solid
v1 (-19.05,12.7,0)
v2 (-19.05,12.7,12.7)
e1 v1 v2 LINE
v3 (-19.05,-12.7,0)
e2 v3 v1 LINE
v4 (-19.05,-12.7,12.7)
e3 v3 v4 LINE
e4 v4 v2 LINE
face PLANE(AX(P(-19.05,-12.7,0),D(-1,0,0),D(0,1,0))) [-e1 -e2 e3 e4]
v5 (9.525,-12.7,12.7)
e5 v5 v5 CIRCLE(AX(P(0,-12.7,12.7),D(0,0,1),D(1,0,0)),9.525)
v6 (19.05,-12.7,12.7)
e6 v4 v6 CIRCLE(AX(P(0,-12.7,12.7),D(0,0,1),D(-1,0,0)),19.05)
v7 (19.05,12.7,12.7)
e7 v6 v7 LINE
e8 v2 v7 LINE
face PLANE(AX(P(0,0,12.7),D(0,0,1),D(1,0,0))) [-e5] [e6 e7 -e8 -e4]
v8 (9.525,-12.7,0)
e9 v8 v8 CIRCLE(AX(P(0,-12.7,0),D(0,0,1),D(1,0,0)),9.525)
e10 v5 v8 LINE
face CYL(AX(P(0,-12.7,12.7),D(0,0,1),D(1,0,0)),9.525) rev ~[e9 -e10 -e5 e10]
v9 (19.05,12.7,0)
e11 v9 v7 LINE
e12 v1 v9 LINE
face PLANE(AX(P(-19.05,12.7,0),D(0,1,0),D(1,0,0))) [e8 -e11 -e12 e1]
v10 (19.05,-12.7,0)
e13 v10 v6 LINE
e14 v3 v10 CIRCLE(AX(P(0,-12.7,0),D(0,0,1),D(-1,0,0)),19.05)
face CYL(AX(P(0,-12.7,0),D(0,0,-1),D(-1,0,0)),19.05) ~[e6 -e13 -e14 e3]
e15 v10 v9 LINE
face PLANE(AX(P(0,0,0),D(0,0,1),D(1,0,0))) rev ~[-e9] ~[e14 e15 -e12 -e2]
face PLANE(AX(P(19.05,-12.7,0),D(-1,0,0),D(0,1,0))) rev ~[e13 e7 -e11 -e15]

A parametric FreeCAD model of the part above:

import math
import FreeCAD as App
import Part
import Sketcher

V = App.Vector
Q = App.Units.Quantity

doc = App.newDocument("Part")
body = doc.addObject("PartDesign::Body", "Body")

sketch1 = body.newObject("Sketcher::SketchObject", "Sketch")
sketch1.AttachmentSupport = (doc.getObject("XY_Plane"), [""])
sketch1.MapMode = "FlatFace"
sketch1.addGeometry(Part.LineSegment(V(-19.05, 12.7, 0), V(-19.05, -12.7, 0)), False)
sketch1.addGeometry(Part.ArcOfCircle(Part.Circle(V(0, -12.7, 0), V(0, 0, 1), 19.05), math.radians(180), math.radians(360)), False)
sketch1.addGeometry(Part.LineSegment(V(19.05, -12.7, 0), V(19.05, 12.7, 0)), False)
sketch1.addGeometry(Part.LineSegment(V(19.05, 12.7, 0), V(-19.05, 12.7, 0)), False)
sketch1.addConstraint(Sketcher.Constraint("Tangent", 0, 2, 1, 1))
sketch1.addConstraint(Sketcher.Constraint("Tangent", 1, 2, 2, 1))
sketch1.addConstraint(Sketcher.Constraint("Coincident", 2, 2, 3, 1))
sketch1.addConstraint(Sketcher.Constraint("Coincident", 3, 2, 0, 1))
sketch1.addConstraint(Sketcher.Constraint("Vertical", 0))
sketch1.addConstraint(Sketcher.Constraint("Vertical", 2))
sketch1.addConstraint(Sketcher.Constraint("Horizontal", 3))
sketch1.addConstraint(Sketcher.Constraint("Symmetric", 0, 2, 2, 2, -1, 1))
sketch1.addConstraint(Sketcher.Constraint("DistanceY", 0, 2, 0, 1, Q("1 in")))
sketch1.addConstraint(Sketcher.Constraint("Radius", 1, Q("0.75 in")))
pad1 = body.newObject("PartDesign::Pad", "Pad")
pad1.Profile = sketch1
pad1.Length = Q("0.5 in")

sketch2 = body.newObject("Sketcher::SketchObject", "Sketch001")
sketch2.AttachmentSupport = (doc.getObject("XY_Plane"), [""])
sketch2.MapMode = "FlatFace"
sketch2.AttachmentOffset = App.Placement(V(0, 0, 0.5 * 25.4), App.Rotation())
sketch2.addGeometry(Part.Circle(V(0, -12.7, 0), V(0, 0, 1), 9.525), False)
sketch2.addConstraint(Sketcher.Constraint("PointOnObject", 0, 3, -2))
sketch2.addConstraint(Sketcher.Constraint("Diameter", 0, Q("0.75 in")))
sketch2.addConstraint(Sketcher.Constraint("DistanceY", 0, 3, -1, 1, Q("0.5 in")))
pocket1 = body.newObject("PartDesign::Pocket", "Pocket")
pocket1.Profile = sketch2
pocket1.Type = "ThroughAll"

doc.recompute()
